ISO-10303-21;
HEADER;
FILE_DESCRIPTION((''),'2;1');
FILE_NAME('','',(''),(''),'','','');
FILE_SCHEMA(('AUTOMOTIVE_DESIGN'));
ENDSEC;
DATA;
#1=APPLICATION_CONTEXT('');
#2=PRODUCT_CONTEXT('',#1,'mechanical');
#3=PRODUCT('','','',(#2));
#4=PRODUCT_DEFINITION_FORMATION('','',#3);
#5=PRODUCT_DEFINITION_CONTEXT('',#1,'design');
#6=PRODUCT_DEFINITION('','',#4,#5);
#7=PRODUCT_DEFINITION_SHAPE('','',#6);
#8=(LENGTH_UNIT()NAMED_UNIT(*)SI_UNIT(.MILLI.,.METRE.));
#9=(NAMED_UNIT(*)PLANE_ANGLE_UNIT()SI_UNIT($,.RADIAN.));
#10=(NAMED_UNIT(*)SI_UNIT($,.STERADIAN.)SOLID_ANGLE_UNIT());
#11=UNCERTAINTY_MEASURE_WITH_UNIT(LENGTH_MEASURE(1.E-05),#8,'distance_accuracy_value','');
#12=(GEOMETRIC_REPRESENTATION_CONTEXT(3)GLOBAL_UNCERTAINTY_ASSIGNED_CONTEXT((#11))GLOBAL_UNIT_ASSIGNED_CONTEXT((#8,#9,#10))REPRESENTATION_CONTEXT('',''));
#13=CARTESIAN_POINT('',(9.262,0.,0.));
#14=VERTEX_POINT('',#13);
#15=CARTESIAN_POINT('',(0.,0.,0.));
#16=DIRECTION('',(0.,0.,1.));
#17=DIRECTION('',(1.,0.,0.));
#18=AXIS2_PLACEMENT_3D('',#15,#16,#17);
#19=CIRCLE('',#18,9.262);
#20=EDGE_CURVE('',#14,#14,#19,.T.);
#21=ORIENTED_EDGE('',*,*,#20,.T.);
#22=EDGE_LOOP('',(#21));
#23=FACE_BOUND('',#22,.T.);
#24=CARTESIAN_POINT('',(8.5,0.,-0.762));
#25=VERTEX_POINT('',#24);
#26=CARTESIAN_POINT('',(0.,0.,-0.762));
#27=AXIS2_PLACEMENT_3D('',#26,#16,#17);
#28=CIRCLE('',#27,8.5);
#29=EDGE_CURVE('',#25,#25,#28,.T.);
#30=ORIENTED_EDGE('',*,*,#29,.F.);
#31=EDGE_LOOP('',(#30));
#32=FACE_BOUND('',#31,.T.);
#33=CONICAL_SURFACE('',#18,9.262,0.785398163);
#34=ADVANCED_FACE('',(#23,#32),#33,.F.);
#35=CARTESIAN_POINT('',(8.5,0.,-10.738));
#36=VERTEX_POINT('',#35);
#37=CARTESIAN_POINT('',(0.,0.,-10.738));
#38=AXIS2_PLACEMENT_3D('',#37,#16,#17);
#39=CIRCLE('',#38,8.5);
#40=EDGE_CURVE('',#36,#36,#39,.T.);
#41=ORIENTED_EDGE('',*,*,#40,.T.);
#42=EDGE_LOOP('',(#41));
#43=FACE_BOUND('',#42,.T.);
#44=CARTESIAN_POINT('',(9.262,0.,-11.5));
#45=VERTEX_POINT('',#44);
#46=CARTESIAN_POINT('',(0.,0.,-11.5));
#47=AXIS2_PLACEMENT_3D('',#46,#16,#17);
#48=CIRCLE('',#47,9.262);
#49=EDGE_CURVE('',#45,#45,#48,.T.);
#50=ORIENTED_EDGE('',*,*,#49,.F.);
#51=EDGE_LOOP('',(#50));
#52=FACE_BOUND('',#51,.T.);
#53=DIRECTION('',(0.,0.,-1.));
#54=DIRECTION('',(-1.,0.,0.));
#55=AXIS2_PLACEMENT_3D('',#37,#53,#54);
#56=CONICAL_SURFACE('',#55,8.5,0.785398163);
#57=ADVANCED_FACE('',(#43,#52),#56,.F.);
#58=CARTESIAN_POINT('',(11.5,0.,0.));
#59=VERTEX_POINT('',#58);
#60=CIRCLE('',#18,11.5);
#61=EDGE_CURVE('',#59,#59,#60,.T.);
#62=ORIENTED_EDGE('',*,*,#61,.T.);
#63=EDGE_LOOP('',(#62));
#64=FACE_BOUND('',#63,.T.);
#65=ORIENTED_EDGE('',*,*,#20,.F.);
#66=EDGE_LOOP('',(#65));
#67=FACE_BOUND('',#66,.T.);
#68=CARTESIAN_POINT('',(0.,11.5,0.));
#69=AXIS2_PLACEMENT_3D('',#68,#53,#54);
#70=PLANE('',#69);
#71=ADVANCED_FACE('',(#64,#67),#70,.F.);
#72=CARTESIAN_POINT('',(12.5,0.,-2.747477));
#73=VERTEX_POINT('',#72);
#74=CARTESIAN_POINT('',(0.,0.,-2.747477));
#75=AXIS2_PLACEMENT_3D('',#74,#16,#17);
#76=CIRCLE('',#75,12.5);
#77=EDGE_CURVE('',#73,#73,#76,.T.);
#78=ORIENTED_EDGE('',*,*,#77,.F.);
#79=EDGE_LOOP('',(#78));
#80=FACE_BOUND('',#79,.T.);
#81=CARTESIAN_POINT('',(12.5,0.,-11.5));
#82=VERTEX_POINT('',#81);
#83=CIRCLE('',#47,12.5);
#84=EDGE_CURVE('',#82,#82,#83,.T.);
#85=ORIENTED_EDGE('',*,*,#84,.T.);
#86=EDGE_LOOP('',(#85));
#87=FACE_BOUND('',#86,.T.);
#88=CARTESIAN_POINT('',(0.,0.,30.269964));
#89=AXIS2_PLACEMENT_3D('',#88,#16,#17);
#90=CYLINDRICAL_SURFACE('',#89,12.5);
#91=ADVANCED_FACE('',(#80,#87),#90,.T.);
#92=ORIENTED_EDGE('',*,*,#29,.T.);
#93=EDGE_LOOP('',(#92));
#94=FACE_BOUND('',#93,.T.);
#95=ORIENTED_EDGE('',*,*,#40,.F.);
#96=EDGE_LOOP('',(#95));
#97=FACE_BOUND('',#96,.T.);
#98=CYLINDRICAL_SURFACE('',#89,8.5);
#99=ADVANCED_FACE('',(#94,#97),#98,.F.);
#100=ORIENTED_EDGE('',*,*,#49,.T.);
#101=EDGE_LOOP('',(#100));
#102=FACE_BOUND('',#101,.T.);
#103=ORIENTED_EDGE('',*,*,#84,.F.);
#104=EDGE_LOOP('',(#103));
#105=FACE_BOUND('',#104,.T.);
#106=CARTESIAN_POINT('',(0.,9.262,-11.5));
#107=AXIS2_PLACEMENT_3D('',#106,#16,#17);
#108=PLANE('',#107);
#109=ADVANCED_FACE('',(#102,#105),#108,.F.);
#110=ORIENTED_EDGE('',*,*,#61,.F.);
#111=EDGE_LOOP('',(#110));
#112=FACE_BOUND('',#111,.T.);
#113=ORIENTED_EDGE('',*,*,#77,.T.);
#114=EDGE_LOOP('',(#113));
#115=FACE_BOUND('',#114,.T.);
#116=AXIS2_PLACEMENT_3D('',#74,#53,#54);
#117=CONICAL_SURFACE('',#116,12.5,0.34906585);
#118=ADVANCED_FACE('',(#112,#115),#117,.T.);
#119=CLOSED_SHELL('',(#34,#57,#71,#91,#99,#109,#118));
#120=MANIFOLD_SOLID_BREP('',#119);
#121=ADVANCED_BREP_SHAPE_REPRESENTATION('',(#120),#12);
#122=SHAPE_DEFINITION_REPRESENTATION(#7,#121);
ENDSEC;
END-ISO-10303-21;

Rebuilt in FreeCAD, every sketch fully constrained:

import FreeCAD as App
import Part
import Sketcher
from FreeCAD import Vector
Q = App.Units.Quantity


def add_polygon(sketch, points):
    """Adds a closed chain of lines whose ends are joined by coincident constraints."""
    first, n = sketch.GeometryCount, len(points)
    for a, b in zip(points, points[1:] + points[:1]):
        sketch.addGeometry(Part.LineSegment(App.Vector(*a, 0), App.Vector(*b, 0)), False)
    for i in range(n):
        sketch.addConstraint(Sketcher.Constraint("Coincident", first + i, 2, first + (i + 1) % n, 1))

doc = App.newDocument("Part")
body = doc.addObject("PartDesign::Body", "Body")

# Sketch on YZ plane
sketch1 = body.newObject("Sketcher::SketchObject", "Sketch")
sketch1.AttachmentSupport = (doc.getObject("YZ_Plane"), [""])
sketch1.MapMode = "FlatFace"
add_polygon(sketch1, [(8.5, -0.8), (8.5, -10.7), (9.3, -11.5), (12.5, -11.5), (12.5, -2.7), (11.5, 0), (9.3, 0)])  # lines 0-6
sketch1.addConstraint(Sketcher.Constraint("Vertical", 0))
sketch1.addConstraint(Sketcher.Constraint("Horizontal", 2))
sketch1.addConstraint(Sketcher.Constraint("Vertical", 3))
sketch1.addConstraint(Sketcher.Constraint("Horizontal", 5))
sketch1.addConstraint(Sketcher.Constraint("PointOnObject", 4, 2, -1))
sketch1.addConstraint(Sketcher.Constraint("Perpendicular", 1, 6))
sketch1.addConstraint(Sketcher.Constraint("Vertical", 1, 2, 5, 2))
sketch1.addConstraint(Sketcher.Constraint("Equal", 1, 6))
sketch1.addConstraint(Sketcher.Constraint("Angle", 4, Q("110 deg")))
sketch1.addConstraint(Sketcher.Constraint("DistanceX", 0, 2, 2, 2, 4.0))
sketch1.addConstraint(Sketcher.Constraint("DistanceX", 4, 2, 3, 2, 1.0))
sketch1.addConstraint(Sketcher.Constraint("DistanceX", -1, 1, 0, 2, 8.5))
sketch1.addConstraint(Sketcher.Constraint("DistanceY", 1, 2, -1, 1, 11.5))
sketch1.addConstraint(Sketcher.Constraint("DistanceX", 2, 1, 2, 2, 3.238))
revolution = body.newObject("PartDesign::Revolution", "Revolution")
revolution.Profile = sketch1
revolution.ReferenceAxis = (sketch1, ["V_Axis"])
revolution.Angle = 360

doc.recompute()
